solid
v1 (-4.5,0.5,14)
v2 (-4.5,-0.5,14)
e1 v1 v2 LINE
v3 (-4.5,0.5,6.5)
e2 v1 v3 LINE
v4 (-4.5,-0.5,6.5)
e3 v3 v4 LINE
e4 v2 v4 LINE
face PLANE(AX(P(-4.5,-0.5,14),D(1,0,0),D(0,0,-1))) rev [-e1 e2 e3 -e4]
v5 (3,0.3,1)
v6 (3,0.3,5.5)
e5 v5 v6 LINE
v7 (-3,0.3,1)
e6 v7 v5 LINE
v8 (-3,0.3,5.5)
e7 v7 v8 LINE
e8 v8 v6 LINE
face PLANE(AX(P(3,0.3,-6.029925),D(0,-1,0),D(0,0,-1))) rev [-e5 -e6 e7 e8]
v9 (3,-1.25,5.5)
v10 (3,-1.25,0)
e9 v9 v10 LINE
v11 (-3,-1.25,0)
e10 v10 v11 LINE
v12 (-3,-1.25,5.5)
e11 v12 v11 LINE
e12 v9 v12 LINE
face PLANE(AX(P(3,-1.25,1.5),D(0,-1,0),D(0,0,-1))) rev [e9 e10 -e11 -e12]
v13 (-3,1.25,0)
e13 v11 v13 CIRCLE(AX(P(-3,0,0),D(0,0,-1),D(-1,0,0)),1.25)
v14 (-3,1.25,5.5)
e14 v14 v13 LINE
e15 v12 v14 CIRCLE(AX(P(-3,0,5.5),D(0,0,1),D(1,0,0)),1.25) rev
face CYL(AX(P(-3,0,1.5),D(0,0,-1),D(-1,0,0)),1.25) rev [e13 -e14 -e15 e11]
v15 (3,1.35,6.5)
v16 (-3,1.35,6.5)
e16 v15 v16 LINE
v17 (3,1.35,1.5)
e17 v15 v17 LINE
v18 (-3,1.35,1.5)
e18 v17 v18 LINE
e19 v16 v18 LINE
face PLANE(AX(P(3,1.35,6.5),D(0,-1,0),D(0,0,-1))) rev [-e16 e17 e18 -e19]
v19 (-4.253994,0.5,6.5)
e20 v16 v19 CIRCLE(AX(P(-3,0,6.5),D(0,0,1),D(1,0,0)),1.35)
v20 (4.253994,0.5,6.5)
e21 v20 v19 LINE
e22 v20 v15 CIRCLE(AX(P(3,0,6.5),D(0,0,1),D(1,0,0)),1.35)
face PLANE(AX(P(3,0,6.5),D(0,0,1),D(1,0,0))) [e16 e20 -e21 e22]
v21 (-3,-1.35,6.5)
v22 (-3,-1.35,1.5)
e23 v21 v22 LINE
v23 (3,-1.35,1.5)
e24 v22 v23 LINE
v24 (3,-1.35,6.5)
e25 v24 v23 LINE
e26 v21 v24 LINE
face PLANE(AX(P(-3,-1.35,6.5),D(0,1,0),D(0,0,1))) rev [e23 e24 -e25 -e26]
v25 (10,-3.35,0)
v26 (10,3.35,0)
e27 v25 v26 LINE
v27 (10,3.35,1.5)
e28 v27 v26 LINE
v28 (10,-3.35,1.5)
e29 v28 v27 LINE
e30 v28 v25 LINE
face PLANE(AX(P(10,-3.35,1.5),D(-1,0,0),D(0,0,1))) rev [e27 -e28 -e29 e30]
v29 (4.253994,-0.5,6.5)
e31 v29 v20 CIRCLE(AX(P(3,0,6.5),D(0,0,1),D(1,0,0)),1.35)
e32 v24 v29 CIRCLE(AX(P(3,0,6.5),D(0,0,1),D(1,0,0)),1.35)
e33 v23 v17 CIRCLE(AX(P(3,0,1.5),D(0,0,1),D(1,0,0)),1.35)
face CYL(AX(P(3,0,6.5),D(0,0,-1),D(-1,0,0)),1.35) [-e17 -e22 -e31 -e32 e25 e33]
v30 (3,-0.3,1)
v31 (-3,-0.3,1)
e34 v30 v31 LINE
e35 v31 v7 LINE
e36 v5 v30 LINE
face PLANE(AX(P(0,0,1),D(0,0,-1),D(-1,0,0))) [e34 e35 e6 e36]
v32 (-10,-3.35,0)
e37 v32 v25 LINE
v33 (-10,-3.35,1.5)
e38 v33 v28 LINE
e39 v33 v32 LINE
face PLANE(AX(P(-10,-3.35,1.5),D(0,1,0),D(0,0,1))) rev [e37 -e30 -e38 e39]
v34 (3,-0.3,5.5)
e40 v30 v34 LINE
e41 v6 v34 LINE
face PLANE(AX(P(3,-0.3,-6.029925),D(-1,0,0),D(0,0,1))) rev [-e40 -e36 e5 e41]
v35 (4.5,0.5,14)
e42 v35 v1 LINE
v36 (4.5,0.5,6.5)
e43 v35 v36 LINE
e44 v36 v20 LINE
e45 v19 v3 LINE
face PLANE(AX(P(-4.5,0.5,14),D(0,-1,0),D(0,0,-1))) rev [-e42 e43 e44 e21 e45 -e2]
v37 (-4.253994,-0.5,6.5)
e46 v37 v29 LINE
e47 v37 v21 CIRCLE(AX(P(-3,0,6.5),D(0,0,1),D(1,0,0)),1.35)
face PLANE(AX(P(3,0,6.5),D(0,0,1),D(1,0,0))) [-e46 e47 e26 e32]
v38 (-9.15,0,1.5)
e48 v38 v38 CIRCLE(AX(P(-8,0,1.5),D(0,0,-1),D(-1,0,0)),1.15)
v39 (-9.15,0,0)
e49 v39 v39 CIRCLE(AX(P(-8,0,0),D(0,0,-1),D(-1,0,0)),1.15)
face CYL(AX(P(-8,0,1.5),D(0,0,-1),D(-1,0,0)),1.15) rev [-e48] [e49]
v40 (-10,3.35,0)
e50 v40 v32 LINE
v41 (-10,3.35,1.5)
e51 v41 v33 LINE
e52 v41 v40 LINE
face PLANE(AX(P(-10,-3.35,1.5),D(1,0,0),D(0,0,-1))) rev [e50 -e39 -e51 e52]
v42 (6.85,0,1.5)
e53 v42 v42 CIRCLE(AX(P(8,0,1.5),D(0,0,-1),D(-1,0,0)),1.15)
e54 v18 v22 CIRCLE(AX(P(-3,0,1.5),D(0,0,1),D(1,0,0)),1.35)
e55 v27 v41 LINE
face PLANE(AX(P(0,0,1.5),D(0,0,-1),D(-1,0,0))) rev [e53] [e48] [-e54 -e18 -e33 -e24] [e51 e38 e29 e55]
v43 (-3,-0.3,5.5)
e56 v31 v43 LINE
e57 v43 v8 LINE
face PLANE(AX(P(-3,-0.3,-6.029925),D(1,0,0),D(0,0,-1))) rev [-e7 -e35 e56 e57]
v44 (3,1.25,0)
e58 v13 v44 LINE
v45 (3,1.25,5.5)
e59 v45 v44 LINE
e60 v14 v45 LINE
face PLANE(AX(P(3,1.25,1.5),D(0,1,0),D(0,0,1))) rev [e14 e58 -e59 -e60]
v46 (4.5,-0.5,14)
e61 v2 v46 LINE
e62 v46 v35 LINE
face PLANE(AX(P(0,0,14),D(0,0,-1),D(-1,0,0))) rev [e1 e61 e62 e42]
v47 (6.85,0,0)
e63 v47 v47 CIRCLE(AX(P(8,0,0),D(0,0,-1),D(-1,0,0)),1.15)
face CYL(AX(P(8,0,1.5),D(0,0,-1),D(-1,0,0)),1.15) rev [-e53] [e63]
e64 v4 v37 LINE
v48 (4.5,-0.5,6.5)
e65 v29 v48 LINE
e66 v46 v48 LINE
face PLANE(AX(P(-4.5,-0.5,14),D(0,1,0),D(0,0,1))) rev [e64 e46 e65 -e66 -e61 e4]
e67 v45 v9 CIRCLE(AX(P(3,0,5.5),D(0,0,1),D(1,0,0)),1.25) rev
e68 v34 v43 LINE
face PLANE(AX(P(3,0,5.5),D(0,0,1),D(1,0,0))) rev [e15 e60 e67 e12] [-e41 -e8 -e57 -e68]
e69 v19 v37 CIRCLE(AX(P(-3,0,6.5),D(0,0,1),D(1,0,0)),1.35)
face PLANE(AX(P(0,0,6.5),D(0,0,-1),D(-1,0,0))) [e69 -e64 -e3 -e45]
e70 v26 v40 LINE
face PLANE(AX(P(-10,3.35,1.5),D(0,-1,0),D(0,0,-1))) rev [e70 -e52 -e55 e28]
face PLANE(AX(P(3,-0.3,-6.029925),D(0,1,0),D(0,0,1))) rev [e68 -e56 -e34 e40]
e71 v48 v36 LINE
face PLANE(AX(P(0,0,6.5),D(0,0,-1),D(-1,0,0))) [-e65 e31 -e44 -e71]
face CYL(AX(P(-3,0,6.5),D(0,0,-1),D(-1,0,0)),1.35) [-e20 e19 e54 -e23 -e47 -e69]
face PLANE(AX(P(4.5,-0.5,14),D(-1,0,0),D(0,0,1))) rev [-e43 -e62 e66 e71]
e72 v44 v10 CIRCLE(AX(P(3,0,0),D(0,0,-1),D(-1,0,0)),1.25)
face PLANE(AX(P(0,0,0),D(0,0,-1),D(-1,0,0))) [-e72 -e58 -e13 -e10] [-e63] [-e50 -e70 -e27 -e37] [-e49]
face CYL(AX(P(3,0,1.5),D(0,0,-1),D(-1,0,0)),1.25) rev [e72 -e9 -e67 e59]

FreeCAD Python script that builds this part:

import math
import FreeCAD as App
import Part
import Sketcher

V = App.Vector
Q = App.Units.Quantity

doc = App.newDocument("Part")
body = doc.addObject("PartDesign::Body", "Body")

sketch1 = doc.addObject("Sketcher::SketchObject", "Sketch")
body.addObject(sketch1)
sketch1.AttachmentSupport = (doc.XY_Plane, [""])
sketch1.MapMode = "FlatFace"
sketch1.addGeometry([
    Part.LineSegment(V(-10, 3.35, 0), V(-10, -3.35, 0)),
    Part.LineSegment(V(-10, -3.35, 0), V(10, -3.35, 0)),
    Part.LineSegment(V(10, -3.35, 0), V(10, 3.35, 0)),
    Part.LineSegment(V(10, 3.35, 0), V(-10, 3.35, 0)),
], False)
sketch1.addConstraint([
    Sketcher.Constraint("Coincident", 0, 2, 1, 1),
    Sketcher.Constraint("Coincident", 1, 2, 2, 1),
    Sketcher.Constraint("Coincident", 2, 2, 3, 1),
    Sketcher.Constraint("Coincident", 3, 2, 0, 1),
    Sketcher.Constraint("Vertical", 0),
    Sketcher.Constraint("Horizontal", 1),
    Sketcher.Constraint("Vertical", 2),
    Sketcher.Constraint("Horizontal", 3),
    Sketcher.Constraint("Symmetric", 0, 2, 2, 2, -1, 1),
    Sketcher.Constraint("DistanceX", 1, 1, 1, 2, Q("20 mm")),
    Sketcher.Constraint("DistanceY", 0, 2, 0, 1, Q("6.7 mm")),
])
pad1 = doc.addObject("PartDesign::Pad", "Pad")
body.addObject(pad1)
pad1.Profile = sketch1
pad1.Length = 1.5

sketch2 = doc.addObject("Sketcher::SketchObject", "Sketch001")
body.addObject(sketch2)
sketch2.AttachmentSupport = (doc.XY_Plane, [""])
sketch2.MapMode = "FlatFace"
sketch2.addGeometry([
    Part.Circle(V(8, 0, 0), V(0, 0, 1), 1.15),
    Part.Circle(V(-8, 0, 0), V(0, 0, 1), 1.15),
    Part.LineSegment(V(-3, 1.25, 0), V(3, 1.25, 0)),
    Part.ArcOfCircle(Part.Circle(V(3, 0, 0), V(0, 0, 1), 1.25), math.radians(-90), math.radians(90)),
    Part.LineSegment(V(3, -1.25, 0), V(-3, -1.25, 0)),
    Part.ArcOfCircle(Part.Circle(V(-3, 0, 0), V(0, 0, 1), 1.25), math.radians(90), math.radians(270)),
], False)
sketch2.addConstraint([
    Sketcher.Constraint("Tangent", 2, 2, 3, 2),
    Sketcher.Constraint("Tangent", 3, 1, 4, 1),
    Sketcher.Constraint("Tangent", 4, 2, 5, 2),
    Sketcher.Constraint("Tangent", 5, 1, 2, 1),
    Sketcher.Constraint("Horizontal", 2),
    Sketcher.Constraint("Horizontal", 4),
    Sketcher.Constraint("Equal", 0, 1),
    Sketcher.Constraint("Symmetric", 0, 3, 1, 3, -1, 1),
    Sketcher.Constraint("Symmetric", 3, 3, 5, 3, -1, 1),
    Sketcher.Constraint("PointOnObject", 0, 3, -1),
    Sketcher.Constraint("Diameter", 0, Q("2.3 mm")),
    Sketcher.Constraint("DistanceX", 2, 1, 2, 2, Q("6 mm")),
    Sketcher.Constraint("Radius", 3, Q("1.25 mm")),
    Sketcher.Constraint("DistanceX", -1, 1, 0, 3, Q("8 mm")),
])
pocket1 = doc.addObject("PartDesign::Pocket", "Pocket")
body.addObject(pocket1)
pocket1.Profile = sketch2
pocket1.Length = 1.5
pocket1.Reversed = True

sketch3 = doc.addObject("Sketcher::SketchObject", "Sketch002")
body.addObject(sketch3)
sketch3.AttachmentSupport = (doc.XY_Plane, [""])
sketch3.MapMode = "FlatFace"
sketch3.AttachmentOffset = App.Placement(V(0, 0, 1.5), App.Rotation())
sketch3.addGeometry([
    Part.LineSegment(V(3, 1.35, 0), V(-3, 1.35, 0)),
    Part.ArcOfCircle(Part.Circle(V(-3, 0, 0), V(0, 0, 1), 1.35), math.radians(90), math.radians(270)),
    Part.LineSegment(V(-3, -1.35, 0), V(3, -1.35, 0)),
    Part.ArcOfCircle(Part.Circle(V(3, 0, 0), V(0, 0, 1), 1.35), math.radians(-90), math.radians(90)),
    Part.LineSegment(V(-3, 1.25, 0), V(3, 1.25, 0)),
    Part.ArcOfCircle(Part.Circle(V(3, 0, 0), V(0, 0, 1), 1.25), math.radians(-90), math.radians(90)),
    Part.LineSegment(V(3, -1.25, 0), V(-3, -1.25, 0)),
    Part.ArcOfCircle(Part.Circle(V(-3, 0, 0), V(0, 0, 1), 1.25), math.radians(90), math.radians(270)),
], False)
sketch3.addConstraint([
    Sketcher.Constraint("Tangent", 0, 2, 1, 1),
    Sketcher.Constraint("Tangent", 1, 2, 2, 1),
    Sketcher.Constraint("Tangent", 2, 2, 3, 1),
    Sketcher.Constraint("Tangent", 3, 2, 0, 1),
    Sketcher.Constraint("Tangent", 4, 2, 5, 2),
    Sketcher.Constraint("Tangent", 5, 1, 6, 1),
    Sketcher.Constraint("Tangent", 6, 2, 7, 2),
    Sketcher.Constraint("Tangent", 7, 1, 4, 1),
    Sketcher.Constraint("Horizontal", 0),
    Sketcher.Constraint("Horizontal", 2),
    Sketcher.Constraint("Horizontal", 4),
    Sketcher.Constraint("Horizontal", 6),
    Sketcher.Constraint("Coincident", 5, 3, 3, 3),
    Sketcher.Constraint("Symmetric", 1, 3, 3, 3, -1, 1),
    Sketcher.Constraint("Vertical", 7, 3, 0, 2),
    Sketcher.Constraint("DistanceX", 0, 2, 0, 1, Q("6 mm")),
    Sketcher.Constraint("Radius", 1, Q("1.35 mm")),
    Sketcher.Constraint("Radius", 5, Q("1.25 mm")),
])
pad2 = doc.addObject("PartDesign::Pad", "Pad001")
body.addObject(pad2)
pad2.Profile = sketch3
pad2.Length = 5

sketch4 = doc.addObject("Sketcher::SketchObject", "Sketch003")
body.addObject(sketch4)
sketch4.AttachmentSupport = (doc.XY_Plane, [""])
sketch4.MapMode = "FlatFace"
sketch4.AttachmentOffset = App.Placement(V(0, 0, 5.5), App.Rotation())
sketch4.addGeometry([
    Part.LineSegment(V(3, 1.35, 0), V(-3, 1.35, 0)),
    Part.ArcOfCircle(Part.Circle(V(-3, 0, 0), V(0, 0, 1), 1.35), math.radians(90), math.radians(270)),
    Part.LineSegment(V(-3, -1.35, 0), V(3, -1.35, 0)),
    Part.ArcOfCircle(Part.Circle(V(3, 0, 0), V(0, 0, 1), 1.35), math.radians(-90), math.radians(90)),
], False)
sketch4.addConstraint([
    Sketcher.Constraint("Tangent", 0, 2, 1, 1),
    Sketcher.Constraint("Tangent", 1, 2, 2, 1),
    Sketcher.Constraint("Tangent", 2, 2, 3, 1),
    Sketcher.Constraint("Tangent", 3, 2, 0, 1),
    Sketcher.Constraint("Horizontal", 0),
    Sketcher.Constraint("Horizontal", 2),
    Sketcher.Constraint("Symmetric", 1, 3, 3, 3, -1, 1),
    Sketcher.Constraint("DistanceX", 0, 2, 0, 1, Q("6 mm")),
    Sketcher.Constraint("Radius", 1, Q("1.35 mm")),
])
pad3 = doc.addObject("PartDesign::Pad", "Pad002")
body.addObject(pad3)
pad3.Profile = sketch4
pad3.Length = 1

sketch5 = doc.addObject("Sketcher::SketchObject", "Sketch004")
body.addObject(sketch5)
sketch5.AttachmentSupport = (doc.XY_Plane, [""])
sketch5.MapMode = "FlatFace"
sketch5.AttachmentOffset = App.Placement(V(0, 0, 5.5), App.Rotation())
sketch5.addGeometry([
    Part.LineSegment(V(3, 0.3, 0), V(3, -0.3, 0)),
    Part.LineSegment(V(3, -0.3, 0), V(-3, -0.3, 0)),
    Part.LineSegment(V(-3, -0.3, 0), V(-3, 0.3, 0)),
    Part.LineSegment(V(-3, 0.3, 0), V(3, 0.3, 0)),
], False)
sketch5.addConstraint([
    Sketcher.Constraint("Coincident", 0, 2, 1, 1),
    Sketcher.Constraint("Coincident", 1, 2, 2, 1),
    Sketcher.Constraint("Coincident", 2, 2, 3, 1),
    Sketcher.Constraint("Coincident", 3, 2, 0, 1),
    Sketcher.Constraint("Vertical", 0),
    Sketcher.Constraint("Horizontal", 1),
    Sketcher.Constraint("Vertical", 2),
    Sketcher.Constraint("Horizontal", 3),
    Sketcher.Constraint("Symmetric", 0, 2, 2, 2, -1, 1),
    Sketcher.Constraint("DistanceX", 1, 2, 1, 1, Q("6 mm")),
    Sketcher.Constraint("DistanceY", 0, 2, 0, 1, Q("0.6 mm")),
])
pad4 = doc.addObject("PartDesign::Pad", "Pad003")
body.addObject(pad4)
pad4.Profile = sketch5
pad4.Length = 4.5
pad4.Reversed = True

sketch6 = doc.addObject("Sketcher::SketchObject", "Sketch005")
body.addObject(sketch6)
sketch6.AttachmentSupport = (doc.XY_Plane, [""])
sketch6.MapMode = "FlatFace"
sketch6.AttachmentOffset = App.Placement(V(0, 0, 6.5), App.Rotation())
sketch6.addGeometry([
    Part.LineSegment(V(-4.5, 0.5, 0), V(-4.5, -0.5, 0)),
    Part.LineSegment(V(-4.5, -0.5, 0), V(4.5, -0.5, 0)),
    Part.LineSegment(V(4.5, -0.5, 0), V(4.5, 0.5, 0)),
    Part.LineSegment(V(4.5, 0.5, 0), V(-4.5, 0.5, 0)),
], False)
sketch6.addConstraint([
    Sketcher.Constraint("Coincident", 0, 2, 1, 1),
    Sketcher.Constraint("Coincident", 1, 2, 2, 1),
    Sketcher.Constraint("Coincident", 2, 2, 3, 1),
    Sketcher.Constraint("Coincident", 3, 2, 0, 1),
    Sketcher.Constraint("Vertical", 0),
    Sketcher.Constraint("Horizontal", 1),
    Sketcher.Constraint("Vertical", 2),
    Sketcher.Constraint("Horizontal", 3),
    Sketcher.Constraint("Symmetric", 0, 2, 2, 2, -1, 1),
    Sketcher.Constraint("DistanceX", 1, 1, 1, 2, Q("9 mm")),
    Sketcher.Constraint("DistanceY", 0, 2, 0, 1, Q("1 mm")),
])
pad5 = doc.addObject("PartDesign::Pad", "Pad004")
body.addObject(pad5)
pad5.Profile = sketch6
pad5.Length = 7.5

doc.recompute()
